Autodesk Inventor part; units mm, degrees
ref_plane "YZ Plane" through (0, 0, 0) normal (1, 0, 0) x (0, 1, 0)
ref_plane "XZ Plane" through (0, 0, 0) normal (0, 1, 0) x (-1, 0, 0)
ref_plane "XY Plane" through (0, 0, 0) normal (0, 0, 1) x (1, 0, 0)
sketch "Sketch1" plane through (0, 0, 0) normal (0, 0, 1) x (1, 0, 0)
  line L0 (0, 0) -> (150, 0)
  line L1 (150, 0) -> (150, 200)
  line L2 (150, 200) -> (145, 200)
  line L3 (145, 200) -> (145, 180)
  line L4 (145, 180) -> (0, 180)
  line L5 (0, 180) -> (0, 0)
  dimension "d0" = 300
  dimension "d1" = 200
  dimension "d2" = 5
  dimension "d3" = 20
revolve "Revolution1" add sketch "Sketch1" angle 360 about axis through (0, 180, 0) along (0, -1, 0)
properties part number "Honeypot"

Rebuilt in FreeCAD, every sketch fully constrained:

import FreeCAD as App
import Part
import Sketcher
from FreeCAD import Vector
Q = App.Units.Quantity

doc = App.newDocument("Part")
body = doc.addObject("PartDesign::Body", "Body")

sketch1 = body.newObject("Sketcher::SketchObject", "Sketch")
sketch1.AttachmentSupport = (doc.getObject("XY_Plane"), [""])
sketch1.MapMode = "FlatFace"
sketch1.addGeometry(Part.LineSegment(Vector(0, 180, 0), Vector(0, 0, 0)), False)
sketch1.addGeometry(Part.LineSegment(Vector(0, 0, 0), Vector(150, 0, 0)), False)
sketch1.addGeometry(Part.LineSegment(Vector(150, 0, 0), Vector(150, 200, 0)), False)
sketch1.addGeometry(Part.LineSegment(Vector(150, 200, 0), Vector(145, 200, 0)), False)
sketch1.addGeometry(Part.LineSegment(Vector(145, 200, 0), Vector(145, 180, 0)), False)
sketch1.addGeometry(Part.LineSegment(Vector(145, 180, 0), Vector(0, 180, 0)), False)
sketch1.addConstraint(Sketcher.Constraint("Coincident", 0, 2, 1, 1))
sketch1.addConstraint(Sketcher.Constraint("Coincident", 1, 2, 2, 1))
sketch1.addConstraint(Sketcher.Constraint("Coincident", 2, 2, 3, 1))
sketch1.addConstraint(Sketcher.Constraint("Coincident", 3, 2, 4, 1))
sketch1.addConstraint(Sketcher.Constraint("Coincident", 4, 2, 5, 1))
sketch1.addConstraint(Sketcher.Constraint("Coincident", 5, 2, 0, 1))
sketch1.addConstraint(Sketcher.Constraint("Vertical", 0))
sketch1.addConstraint(Sketcher.Constraint("Horizontal", 1))
sketch1.addConstraint(Sketcher.Constraint("Vertical", 2))
sketch1.addConstraint(Sketcher.Constraint("Horizontal", 3))
sketch1.addConstraint(Sketcher.Constraint("Vertical", 4))
sketch1.addConstraint(Sketcher.Constraint("Horizontal", 5))
sketch1.addConstraint(Sketcher.Constraint("Coincident", 0, 2, -1, 1))
sketch1.addConstraint(Sketcher.Constraint("DistanceX", 3, 2, 3, 1, Q("5 mm")))
sketch1.addConstraint(Sketcher.Constraint("DistanceY", 2, 1, 2, 2, Q("200 mm")))
sketch1.addConstraint(Sketcher.Constraint("DistanceY", 4, 2, 4, 1, Q("20 mm")))
sketch1.addConstraint(Sketcher.Constraint("DistanceX", 1, 1, 1, 2, Q("150 mm")))
revolution = body.newObject("PartDesign::Revolution", "Revolution")
revolution.Profile = sketch1
revolution.ReferenceAxis = (sketch1, ["V_Axis"])
revolution.Angle = 360

doc.recompute()
